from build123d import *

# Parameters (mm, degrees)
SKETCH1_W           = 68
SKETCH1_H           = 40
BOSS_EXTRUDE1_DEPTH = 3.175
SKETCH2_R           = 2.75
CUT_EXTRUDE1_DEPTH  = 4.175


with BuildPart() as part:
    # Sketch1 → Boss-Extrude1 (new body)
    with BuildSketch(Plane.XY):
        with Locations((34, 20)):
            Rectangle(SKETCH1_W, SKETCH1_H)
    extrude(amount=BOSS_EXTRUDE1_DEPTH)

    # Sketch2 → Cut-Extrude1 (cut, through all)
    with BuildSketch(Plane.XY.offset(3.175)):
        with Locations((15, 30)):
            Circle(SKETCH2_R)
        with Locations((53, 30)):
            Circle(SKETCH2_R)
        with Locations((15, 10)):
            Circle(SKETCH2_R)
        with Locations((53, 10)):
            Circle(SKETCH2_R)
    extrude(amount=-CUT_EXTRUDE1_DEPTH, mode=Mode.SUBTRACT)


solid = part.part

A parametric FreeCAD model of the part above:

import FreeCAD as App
import Part
import Sketcher

doc = App.newDocument("Part")
body = doc.addObject("PartDesign::Body", "Body")

# Sketch on XY plane
sketch1 = body.newObject("Sketcher::SketchObject", "Sketch")
sketch1.AttachmentSupport = (doc.getObject("XY_Plane"), [""])
sketch1.MapMode = "FlatFace"
sketch1.addGeometry(Part.LineSegment(App.Vector(0, 40, 0), App.Vector(0, 0, 0)), False)
sketch1.addGeometry(Part.LineSegment(App.Vector(0, 0, 0), App.Vector(68, 0, 0)), False)
sketch1.addGeometry(Part.LineSegment(App.Vector(68, 0, 0), App.Vector(68, 40, 0)), False)
sketch1.addGeometry(Part.LineSegment(App.Vector(68, 40, 0), App.Vector(0, 40, 0)), False)
sketch1.addConstraint(Sketcher.Constraint("Coincident", 0, 2, 1, 1))
sketch1.addConstraint(Sketcher.Constraint("Coincident", 1, 2, 2, 1))
sketch1.addConstraint(Sketcher.Constraint("Coincident", 2, 2, 3, 1))
sketch1.addConstraint(Sketcher.Constraint("Coincident", 3, 2, 0, 1))
sketch1.addConstraint(Sketcher.Constraint("Vertical", 0))
sketch1.addConstraint(Sketcher.Constraint("Horizontal", 1))
sketch1.addConstraint(Sketcher.Constraint("Vertical", 2))
sketch1.addConstraint(Sketcher.Constraint("Horizontal", 3))
sketch1.addConstraint(Sketcher.Constraint("Coincident", 0, 2, -1, 1))
sketch1.addConstraint(Sketcher.Constraint("DistanceX", 1, 1, 1, 2, 68.0))
sketch1.addConstraint(Sketcher.Constraint("DistanceY", 0, 2, 0, 1, 40.0))
pad1 = body.newObject("PartDesign::Pad", "Pad")
pad1.Profile = sketch1
pad1.Length = 3.175

# Sketch on XY plane
sketch2 = body.newObject("Sketcher::SketchObject", "Sketch001")
sketch2.AttachmentSupport = (doc.getObject("XY_Plane"), [""])
sketch2.MapMode = "FlatFace"
sketch2.AttachmentOffset = App.Placement(App.Vector(0, 0, 3.175), App.Rotation())
sketch2.addGeometry(Part.Circle(App.Vector(15, 30, 0), App.Vector(0, 0, 1), 2.8), False)
sketch2.addGeometry(Part.Circle(App.Vector(53, 30, 0), App.Vector(0, 0, 1), 2.8), False)
sketch2.addGeometry(Part.Circle(App.Vector(15, 10, 0), App.Vector(0, 0, 1), 2.8), False)
sketch2.addGeometry(Part.Circle(App.Vector(53, 10, 0), App.Vector(0, 0, 1), 2.8), False)
sketch2.addConstraint(Sketcher.Constraint("Equal", 0, 1))
sketch2.addConstraint(Sketcher.Constraint("Equal", 1, 2))
sketch2.addConstraint(Sketcher.Constraint("Equal", 2, 3))
sketch2.addConstraint(Sketcher.Constraint("Horizontal", 0, 3, 1, 3))
sketch2.addConstraint(Sketcher.Constraint("Horizontal", 2, 3, 3, 3))
sketch2.addConstraint(Sketcher.Constraint("Vertical", 0, 3, 2, 3))
sketch2.addConstraint(Sketcher.Constraint("Vertical", 1, 3, 3, 3))
sketch2.addConstraint(Sketcher.Constraint("Diameter", 0, 5.5))
sketch2.addConstraint(Sketcher.Constraint("DistanceX", -1, 1, 0, 3, 15.0))
sketch2.addConstraint(Sketcher.Constraint("DistanceY", -1, 1, 0, 3, 30.0))
sketch2.addConstraint(Sketcher.Constraint("DistanceX", -1, 1, 1, 3, 53.0))
sketch2.addConstraint(Sketcher.Constraint("DistanceY", -1, 1, 2, 3, 10.0))
pocket1 = body.newObject("PartDesign::Pocket", "Pocket")
pocket1.Profile = sketch2
pocket1.Type = "ThroughAll"

doc.recompute()
